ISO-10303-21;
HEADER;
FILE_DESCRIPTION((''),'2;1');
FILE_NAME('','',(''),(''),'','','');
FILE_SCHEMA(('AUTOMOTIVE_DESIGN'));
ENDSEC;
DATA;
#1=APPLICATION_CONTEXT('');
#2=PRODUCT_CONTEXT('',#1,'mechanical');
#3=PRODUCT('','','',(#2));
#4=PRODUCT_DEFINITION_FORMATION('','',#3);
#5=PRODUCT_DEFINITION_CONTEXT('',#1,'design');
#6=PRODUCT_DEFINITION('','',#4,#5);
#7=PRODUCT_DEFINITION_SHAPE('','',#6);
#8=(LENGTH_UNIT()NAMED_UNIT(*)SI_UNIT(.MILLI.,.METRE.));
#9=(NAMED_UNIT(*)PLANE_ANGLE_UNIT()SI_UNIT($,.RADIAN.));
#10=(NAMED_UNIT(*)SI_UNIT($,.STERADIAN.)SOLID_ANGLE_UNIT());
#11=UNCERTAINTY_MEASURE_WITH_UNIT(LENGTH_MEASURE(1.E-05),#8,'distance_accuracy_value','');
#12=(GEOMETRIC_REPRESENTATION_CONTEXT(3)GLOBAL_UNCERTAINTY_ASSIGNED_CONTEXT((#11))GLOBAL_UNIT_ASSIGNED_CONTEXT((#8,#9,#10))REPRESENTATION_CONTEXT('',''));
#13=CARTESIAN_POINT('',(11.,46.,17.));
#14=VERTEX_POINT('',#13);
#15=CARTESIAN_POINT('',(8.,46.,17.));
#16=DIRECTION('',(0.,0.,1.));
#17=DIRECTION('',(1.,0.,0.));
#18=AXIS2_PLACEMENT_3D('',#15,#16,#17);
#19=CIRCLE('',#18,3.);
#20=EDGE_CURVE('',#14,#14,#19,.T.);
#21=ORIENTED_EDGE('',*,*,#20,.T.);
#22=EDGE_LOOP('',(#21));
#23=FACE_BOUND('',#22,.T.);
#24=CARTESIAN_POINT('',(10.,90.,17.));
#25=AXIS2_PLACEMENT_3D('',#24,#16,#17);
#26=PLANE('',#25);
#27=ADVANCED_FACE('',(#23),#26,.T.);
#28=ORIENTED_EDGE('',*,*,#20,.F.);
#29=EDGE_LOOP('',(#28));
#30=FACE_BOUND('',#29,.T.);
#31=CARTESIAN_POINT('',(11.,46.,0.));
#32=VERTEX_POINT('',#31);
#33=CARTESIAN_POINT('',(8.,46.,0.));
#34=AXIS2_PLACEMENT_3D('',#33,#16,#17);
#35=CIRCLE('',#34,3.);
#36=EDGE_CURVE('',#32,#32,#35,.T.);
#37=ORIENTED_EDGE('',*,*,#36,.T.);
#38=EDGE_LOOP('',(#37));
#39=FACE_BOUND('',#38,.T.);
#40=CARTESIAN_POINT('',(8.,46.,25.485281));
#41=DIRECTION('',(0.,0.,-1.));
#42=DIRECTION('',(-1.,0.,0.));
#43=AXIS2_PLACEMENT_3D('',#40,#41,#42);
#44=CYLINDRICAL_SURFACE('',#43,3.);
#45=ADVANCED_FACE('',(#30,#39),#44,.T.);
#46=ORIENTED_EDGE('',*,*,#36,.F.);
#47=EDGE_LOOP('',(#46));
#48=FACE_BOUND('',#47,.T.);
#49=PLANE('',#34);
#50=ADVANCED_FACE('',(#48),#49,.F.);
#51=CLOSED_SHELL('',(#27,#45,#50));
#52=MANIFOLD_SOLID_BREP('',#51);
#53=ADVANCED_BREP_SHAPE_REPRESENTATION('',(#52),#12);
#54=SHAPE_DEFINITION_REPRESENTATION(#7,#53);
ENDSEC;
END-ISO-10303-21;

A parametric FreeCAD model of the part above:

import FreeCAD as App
import Part
import Sketcher

V = App.Vector
Q = App.Units.Quantity

doc = App.newDocument("Part")
body = doc.addObject("PartDesign::Body", "Body")

# Sketch on XY plane
sketch1 = body.newObject("Sketcher::SketchObject", "Sketch")
sketch1.AttachmentSupport = (doc.getObject("XY_Plane"), [""])
sketch1.MapMode = "FlatFace"
sketch1.addGeometry(Part.Circle(V(8, 46, 0), V(0, 0, 1), 3), False)
sketch1.addConstraint([
    Sketcher.Constraint("Diameter", 0, Q("6 mm")),
    Sketcher.Constraint("DistanceX", -1, 1, 0, 3, Q("8 mm")),
    Sketcher.Constraint("DistanceY", -1, 1, 0, 3, Q("46 mm")),
])
pad1 = body.newObject("PartDesign::Pad", "Pad")
pad1.Profile = sketch1
pad1.Length = 17

doc.recompute()
